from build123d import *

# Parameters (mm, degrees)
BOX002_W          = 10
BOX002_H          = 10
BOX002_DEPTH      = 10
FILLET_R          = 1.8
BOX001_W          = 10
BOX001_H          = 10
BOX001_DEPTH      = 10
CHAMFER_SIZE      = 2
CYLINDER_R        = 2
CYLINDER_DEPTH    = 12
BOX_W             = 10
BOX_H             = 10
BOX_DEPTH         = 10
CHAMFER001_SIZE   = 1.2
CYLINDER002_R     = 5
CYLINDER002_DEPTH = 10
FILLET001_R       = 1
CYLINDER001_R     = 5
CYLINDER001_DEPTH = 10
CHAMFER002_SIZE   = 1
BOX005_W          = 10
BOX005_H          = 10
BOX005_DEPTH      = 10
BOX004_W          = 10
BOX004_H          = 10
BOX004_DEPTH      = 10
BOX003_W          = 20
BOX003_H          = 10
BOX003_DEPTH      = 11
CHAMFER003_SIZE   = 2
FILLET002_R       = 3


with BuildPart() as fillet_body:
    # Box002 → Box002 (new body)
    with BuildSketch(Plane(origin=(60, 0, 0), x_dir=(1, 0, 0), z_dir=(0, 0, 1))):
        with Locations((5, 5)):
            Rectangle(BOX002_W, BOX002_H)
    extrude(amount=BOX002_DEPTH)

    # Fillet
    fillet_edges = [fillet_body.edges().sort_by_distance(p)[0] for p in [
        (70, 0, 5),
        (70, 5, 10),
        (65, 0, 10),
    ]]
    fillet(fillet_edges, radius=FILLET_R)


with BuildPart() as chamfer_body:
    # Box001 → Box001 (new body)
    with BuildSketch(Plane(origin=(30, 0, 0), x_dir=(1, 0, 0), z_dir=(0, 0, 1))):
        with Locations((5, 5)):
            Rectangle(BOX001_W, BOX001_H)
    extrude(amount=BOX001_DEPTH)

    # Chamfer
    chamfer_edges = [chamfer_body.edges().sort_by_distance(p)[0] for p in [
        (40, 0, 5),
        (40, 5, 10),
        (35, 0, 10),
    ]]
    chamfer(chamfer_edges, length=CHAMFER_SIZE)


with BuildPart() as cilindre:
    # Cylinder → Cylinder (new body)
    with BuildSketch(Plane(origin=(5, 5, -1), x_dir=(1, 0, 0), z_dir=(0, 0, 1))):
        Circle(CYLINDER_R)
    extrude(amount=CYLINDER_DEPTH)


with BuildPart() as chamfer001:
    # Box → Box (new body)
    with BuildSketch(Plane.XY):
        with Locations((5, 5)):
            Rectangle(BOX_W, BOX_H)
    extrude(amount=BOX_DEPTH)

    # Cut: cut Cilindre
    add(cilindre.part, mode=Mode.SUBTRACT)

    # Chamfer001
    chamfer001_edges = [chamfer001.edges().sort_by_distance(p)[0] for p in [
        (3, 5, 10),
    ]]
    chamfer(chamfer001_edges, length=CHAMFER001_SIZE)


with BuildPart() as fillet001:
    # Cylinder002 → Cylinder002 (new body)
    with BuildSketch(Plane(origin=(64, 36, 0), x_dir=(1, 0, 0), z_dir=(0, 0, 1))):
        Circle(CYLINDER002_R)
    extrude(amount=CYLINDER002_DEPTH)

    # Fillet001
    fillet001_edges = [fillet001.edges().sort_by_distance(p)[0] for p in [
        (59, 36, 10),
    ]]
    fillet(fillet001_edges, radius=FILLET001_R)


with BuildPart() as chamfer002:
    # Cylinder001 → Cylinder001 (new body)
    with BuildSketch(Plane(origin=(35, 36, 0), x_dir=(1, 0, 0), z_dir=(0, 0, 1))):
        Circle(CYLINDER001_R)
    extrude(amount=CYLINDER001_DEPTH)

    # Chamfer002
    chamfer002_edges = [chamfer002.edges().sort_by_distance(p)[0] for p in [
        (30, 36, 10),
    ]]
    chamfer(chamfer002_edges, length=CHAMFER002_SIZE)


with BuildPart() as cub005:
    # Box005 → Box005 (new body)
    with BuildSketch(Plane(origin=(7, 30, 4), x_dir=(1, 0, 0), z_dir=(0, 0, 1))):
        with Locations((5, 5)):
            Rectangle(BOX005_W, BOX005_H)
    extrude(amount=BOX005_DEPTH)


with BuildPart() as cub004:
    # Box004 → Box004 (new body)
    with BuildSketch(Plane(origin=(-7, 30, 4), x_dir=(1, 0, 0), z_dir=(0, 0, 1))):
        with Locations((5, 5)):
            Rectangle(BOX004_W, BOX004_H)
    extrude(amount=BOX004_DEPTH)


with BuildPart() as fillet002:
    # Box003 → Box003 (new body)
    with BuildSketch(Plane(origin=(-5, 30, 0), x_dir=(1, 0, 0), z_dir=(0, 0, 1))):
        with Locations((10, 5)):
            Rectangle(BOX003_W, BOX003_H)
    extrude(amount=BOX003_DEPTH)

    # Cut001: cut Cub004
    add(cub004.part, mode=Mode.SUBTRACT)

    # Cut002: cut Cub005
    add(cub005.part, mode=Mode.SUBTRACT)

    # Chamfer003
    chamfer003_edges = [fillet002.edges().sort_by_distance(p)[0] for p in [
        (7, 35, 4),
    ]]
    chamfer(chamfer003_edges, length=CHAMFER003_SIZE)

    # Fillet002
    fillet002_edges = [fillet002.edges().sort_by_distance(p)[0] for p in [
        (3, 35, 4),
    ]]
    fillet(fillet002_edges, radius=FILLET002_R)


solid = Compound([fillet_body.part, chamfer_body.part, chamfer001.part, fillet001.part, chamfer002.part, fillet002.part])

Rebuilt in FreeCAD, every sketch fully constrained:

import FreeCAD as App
import Part
import Sketcher

V = App.Vector


def edges_at(feature, points):
    """Names of the edges that pass closest to the given points."""
    edges = feature.Shape.Edges
    near = lambda p: min(range(len(edges)), key=lambda i: edges[i].distToShape(Part.Vertex(*p))[0])
    return sorted({f"Edge{near(p) + 1}" for p in points})

doc = App.newDocument("Part")
params = doc.addObject("Spreadsheet::Sheet", "Params")
for row, (alias, value) in enumerate([
    ("sketch1_width", "10 mm"),
    ("pad1_length", "10 mm"),
    ("fillet_radius", "1.8 mm"),
    ("sketch2_width", "10 mm"),
    ("pad2_length", "10 mm"),
    ("chamfer_size", "2 mm"),
    ("sketch3_diameter", "4 mm"),
    ("pad3_length", "12 mm"),
    ("sketch4_width", "10 mm"),
    ("pad4_length", "10 mm"),
    ("chamfer2_size", "1.2 mm"),
    ("sketch5_diameter", "10 mm"),
    ("pad5_length", "10 mm"),
    ("fillet2_radius", "1 mm"),
    ("sketch6_diameter", "10 mm"),
    ("pad6_length", "10 mm"),
    ("chamfer3_size", "1 mm"),
    ("sketch7_width", "10 mm"),
    ("pad7_length", "10 mm"),
    ("sketch8_width", "10 mm"),
    ("pad8_length", "10 mm"),
    ("sketch9_width", "20 mm"),
    ("sketch9_height", "10 mm"),
    ("pad9_length", "11 mm"),
    ("chamfer4_size", "2 mm"),
    ("fillet3_radius", "3 mm"),
], start=1):
    params.set(f"A{row}", alias)
    params.set(f"B{row}", "=" + value)
    params.setAlias(f"B{row}", alias)

body = doc.addObject("PartDesign::Body", "Body")

# Sketch on XY plane
sketch1 = doc.addObject("Sketcher::SketchObject", "Sketch")
body.addObject(sketch1)
sketch1.AttachmentSupport = (doc.XY_Plane, [""])
sketch1.MapMode = "FlatFace"
sketch1.addGeometry([
    Part.LineSegment(V(60, 10, 0), V(60, 0, 0)),
    Part.LineSegment(V(60, 0, 0), V(70, 0, 0)),
    Part.LineSegment(V(70, 0, 0), V(70, 10, 0)),
    Part.LineSegment(V(70, 10, 0), V(60, 10, 0)),
], False)
sketch1.addConstraint([
    Sketcher.Constraint("Coincident", 0, 2, 1, 1),
    Sketcher.Constraint("Coincident", 1, 2, 2, 1),
    Sketcher.Constraint("Coincident", 2, 2, 3, 1),
    Sketcher.Constraint("Coincident", 3, 2, 0, 1),
    Sketcher.Constraint("Vertical", 0),
    Sketcher.Constraint("Horizontal", 1),
    Sketcher.Constraint("Vertical", 2),
    Sketcher.Constraint("Horizontal", 3),
    Sketcher.Constraint("PointOnObject", 0, 2, -1),
    Sketcher.Constraint("Equal", 3, 0),
    Sketcher.Constraint("DistanceX", 1, 1, 1, 2, 10.0),
    Sketcher.Constraint("DistanceX", -1, 1, 0, 2, 60.0),
])
sketch1.setExpression("Constraints[10]", "Params.sketch1_width")
pad1 = doc.addObject("PartDesign::Pad", "Pad")
body.addObject(pad1)
pad1.Profile = sketch1
pad1.setExpression("Length", "Params.pad1_length")
doc.recompute()

fillet = doc.addObject("PartDesign::Fillet", "Fillet")
body.addObject(fillet)
fillet.Base = (pad1, edges_at(pad1, [(70, 0, 5), (70, 5, 10), (65, 0, 10)]))
fillet.setExpression("Radius", "Params.fillet_radius")
body2 = doc.addObject("PartDesign::Body", "Body001")

# Sketch on XY plane
sketch2 = doc.addObject("Sketcher::SketchObject", "Sketch001")
body2.addObject(sketch2)
sketch2.AttachmentSupport = (doc.getObject("XY_Plane001"), [""])
sketch2.MapMode = "FlatFace"
sketch2.addGeometry([
    Part.LineSegment(V(30, 10, 0), V(30, 0, 0)),
    Part.LineSegment(V(30, 0, 0), V(40, 0, 0)),
    Part.LineSegment(V(40, 0, 0), V(40, 10, 0)),
    Part.LineSegment(V(40, 10, 0), V(30, 10, 0)),
], False)
sketch2.addConstraint([
    Sketcher.Constraint("Coincident", 0, 2, 1, 1),
    Sketcher.Constraint("Coincident", 1, 2, 2, 1),
    Sketcher.Constraint("Coincident", 2, 2, 3, 1),
    Sketcher.Constraint("Coincident", 3, 2, 0, 1),
    Sketcher.Constraint("Vertical", 0),
    Sketcher.Constraint("Horizontal", 1),
    Sketcher.Constraint("Vertical", 2),
    Sketcher.Constraint("Horizontal", 3),
    Sketcher.Constraint("PointOnObject", 0, 2, -1),
    Sketcher.Constraint("Equal", 3, 0),
    Sketcher.Constraint("DistanceX", 1, 1, 1, 2, 10.0),
    Sketcher.Constraint("DistanceX", -1, 1, 0, 2, 30.0),
])
sketch2.setExpression("Constraints[10]", "Params.sketch2_width")
pad2 = doc.addObject("PartDesign::Pad", "Pad001")
body2.addObject(pad2)
pad2.Profile = sketch2
pad2.setExpression("Length", "Params.pad2_length")
doc.recompute()

chamfer = doc.addObject("PartDesign::Chamfer", "Chamfer")
body2.addObject(chamfer)
chamfer.Base = (pad2, edges_at(pad2, [(40, 0, 5), (40, 5, 10), (35, 0, 10)]))
chamfer.setExpression("Size", "Params.chamfer_size")
body3 = doc.addObject("PartDesign::Body", "Body002")

# Sketch on XY plane
sketch3 = doc.addObject("Sketcher::SketchObject", "Sketch002")
body3.addObject(sketch3)
sketch3.AttachmentSupport = (doc.getObject("XY_Plane002"), [""])
sketch3.MapMode = "FlatFace"
sketch3.AttachmentOffset = App.Placement(V(0, 0, -1), App.Rotation())
sketch3.addGeometry(Part.Circle(V(5, 5, 0), V(0, 0, 1), 2), False)
sketch3.addConstraint([
    Sketcher.Constraint("Diameter", 0, 4.0),
    Sketcher.Constraint("DistanceX", -1, 1, 0, 3, 5.0),
    Sketcher.Constraint("DistanceY", -1, 1, 0, 3, 5.0),
])
sketch3.setExpression("Constraints[0]", "Params.sketch3_diameter")
pad3 = doc.addObject("PartDesign::Pad", "Pad002")
body3.addObject(pad3)
pad3.Profile = sketch3
pad3.setExpression("Length", "Params.pad3_length")
body4 = doc.addObject("PartDesign::Body", "Body003")

# Sketch on XY plane
sketch4 = doc.addObject("Sketcher::SketchObject", "Sketch003")
body4.addObject(sketch4)
sketch4.AttachmentSupport = (doc.getObject("XY_Plane003"), [""])
sketch4.MapMode = "FlatFace"
sketch4.addGeometry([
    Part.LineSegment(V(0, 10, 0), V(0, 0, 0)),
    Part.LineSegment(V(0, 0, 0), V(10, 0, 0)),
    Part.LineSegment(V(10, 0, 0), V(10, 10, 0)),
    Part.LineSegment(V(10, 10, 0), V(0, 10, 0)),
], False)
sketch4.addConstraint([
    Sketcher.Constraint("Coincident", 0, 2, 1, 1),
    Sketcher.Constraint("Coincident", 1, 2, 2, 1),
    Sketcher.Constraint("Coincident", 2, 2, 3, 1),
    Sketcher.Constraint("Coincident", 3, 2, 0, 1),
    Sketcher.Constraint("Vertical", 0),
    Sketcher.Constraint("Horizontal", 1),
    Sketcher.Constraint("Vertical", 2),
    Sketcher.Constraint("Horizontal", 3),
    Sketcher.Constraint("Coincident", 0, 2, -1, 1),
    Sketcher.Constraint("Equal", 3, 0),
    Sketcher.Constraint("DistanceX", 1, 1, 1, 2, 10.0),
])
sketch4.setExpression("Constraints[10]", "Params.sketch4_width")
pad4 = doc.addObject("PartDesign::Pad", "Pad003")
body4.addObject(pad4)
pad4.Profile = sketch4
pad4.setExpression("Length", "Params.pad4_length")
doc.recompute()

boolean = doc.addObject("PartDesign::Boolean", "Boolean")
body4.addObject(boolean)
boolean.Type = "Cut"
boolean.addObjects([body3])
doc.recompute()

chamfer2 = doc.addObject("PartDesign::Chamfer", "Chamfer001")
body4.addObject(chamfer2)
chamfer2.Base = (boolean, edges_at(boolean, [(3, 5, 10)]))
chamfer2.setExpression("Size", "Params.chamfer2_size")
body5 = doc.addObject("PartDesign::Body", "Body004")

# Sketch on XY plane
sketch5 = doc.addObject("Sketcher::SketchObject", "Sketch004")
body5.addObject(sketch5)
sketch5.AttachmentSupport = (doc.getObject("XY_Plane004"), [""])
sketch5.MapMode = "FlatFace"
sketch5.addGeometry(Part.Circle(V(64, 36, 0), V(0, 0, 1), 5), False)
sketch5.addConstraint([
    Sketcher.Constraint("Diameter", 0, 10.0),
    Sketcher.Constraint("DistanceX", -1, 1, 0, 3, 64.0),
    Sketcher.Constraint("DistanceY", -1, 1, 0, 3, 36.0),
])
sketch5.setExpression("Constraints[0]", "Params.sketch5_diameter")
pad5 = doc.addObject("PartDesign::Pad", "Pad004")
body5.addObject(pad5)
pad5.Profile = sketch5
pad5.setExpression("Length", "Params.pad5_length")
doc.recompute()

fillet2 = doc.addObject("PartDesign::Fillet", "Fillet001")
body5.addObject(fillet2)
fillet2.Base = (pad5, edges_at(pad5, [(59, 36, 10)]))
fillet2.setExpression("Radius", "Params.fillet2_radius")
body6 = doc.addObject("PartDesign::Body", "Body005")

# Sketch on XY plane
sketch6 = doc.addObject("Sketcher::SketchObject", "Sketch005")
body6.addObject(sketch6)
sketch6.AttachmentSupport = (doc.getObject("XY_Plane005"), [""])
sketch6.MapMode = "FlatFace"
sketch6.addGeometry(Part.Circle(V(35, 36, 0), V(0, 0, 1), 5), False)
sketch6.addConstraint([
    Sketcher.Constraint("Diameter", 0, 10.0),
    Sketcher.Constraint("DistanceX", -1, 1, 0, 3, 35.0),
    Sketcher.Constraint("DistanceY", -1, 1, 0, 3, 36.0),
])
sketch6.setExpression("Constraints[0]", "Params.sketch6_diameter")
pad6 = doc.addObject("PartDesign::Pad", "Pad005")
body6.addObject(pad6)
pad6.Profile = sketch6
pad6.setExpression("Length", "Params.pad6_length")
doc.recompute()

chamfer3 = doc.addObject("PartDesign::Chamfer", "Chamfer002")
body6.addObject(chamfer3)
chamfer3.Base = (pad6, edges_at(pad6, [(30, 36, 10)]))
chamfer3.setExpression("Size", "Params.chamfer3_size")
body7 = doc.addObject("PartDesign::Body", "Body006")

# Sketch on XY plane
sketch7 = doc.addObject("Sketcher::SketchObject", "Sketch006")
body7.addObject(sketch7)
sketch7.AttachmentSupport = (doc.getObject("XY_Plane006"), [""])
sketch7.MapMode = "FlatFace"
sketch7.AttachmentOffset = App.Placement(V(0, 0, 4), App.Rotation())
sketch7.addGeometry([
    Part.LineSegment(V(7, 40, 0), V(7, 30, 0)),
    Part.LineSegment(V(7, 30, 0), V(17, 30, 0)),
    Part.LineSegment(V(17, 30, 0), V(17, 40, 0)),
    Part.LineSegment(V(17, 40, 0), V(7, 40, 0)),
], False)
sketch7.addConstraint([
    Sketcher.Constraint("Coincident", 0, 2, 1, 1),
    Sketcher.Constraint("Coincident", 1, 2, 2, 1),
    Sketcher.Constraint("Coincident", 2, 2, 3, 1),
    Sketcher.Constraint("Coincident", 3, 2, 0, 1),
    Sketcher.Constraint("Vertical", 0),
    Sketcher.Constraint("Horizontal", 1),
    Sketcher.Constraint("Vertical", 2),
    Sketcher.Constraint("Horizontal", 3),
    Sketcher.Constraint("Equal", 3, 0),
    Sketcher.Constraint("DistanceX", 1, 1, 1, 2, 10.0),
    Sketcher.Constraint("DistanceX", -1, 1, 0, 2, 7.0),
    Sketcher.Constraint("DistanceY", -1, 1, 0, 2, 30.0),
])
sketch7.setExpression("Constraints[9]", "Params.sketch7_width")
pad7 = doc.addObject("PartDesign::Pad", "Pad006")
body7.addObject(pad7)
pad7.Profile = sketch7
pad7.setExpression("Length", "Params.pad7_length")
body8 = doc.addObject("PartDesign::Body", "Body007")

# Sketch on XY plane
sketch8 = doc.addObject("Sketcher::SketchObject", "Sketch007")
body8.addObject(sketch8)
sketch8.AttachmentSupport = (doc.getObject("XY_Plane007"), [""])
sketch8.MapMode = "FlatFace"
sketch8.AttachmentOffset = App.Placement(V(0, 0, 4), App.Rotation())
sketch8.addGeometry([
    Part.LineSegment(V(-7, 40, 0), V(-7, 30, 0)),
    Part.LineSegment(V(-7, 30, 0), V(3, 30, 0)),
    Part.LineSegment(V(3, 30, 0), V(3, 40, 0)),
    Part.LineSegment(V(3, 40, 0), V(-7, 40, 0)),
], False)
sketch8.addConstraint([
    Sketcher.Constraint("Coincident", 0, 2, 1, 1),
    Sketcher.Constraint("Coincident", 1, 2, 2, 1),
    Sketcher.Constraint("Coincident", 2, 2, 3, 1),
    Sketcher.Constraint("Coincident", 3, 2, 0, 1),
    Sketcher.Constraint("Vertical", 0),
    Sketcher.Constraint("Horizontal", 1),
    Sketcher.Constraint("Vertical", 2),
    Sketcher.Constraint("Horizontal", 3),
    Sketcher.Constraint("Equal", 3, 0),
    Sketcher.Constraint("DistanceX", 1, 1, 1, 2, 10.0),
    Sketcher.Constraint("DistanceX", 0, 2, -1, 1, 7.0),
    Sketcher.Constraint("DistanceY", -1, 1, 0, 2, 30.0),
])
sketch8.setExpression("Constraints[9]", "Params.sketch8_width")
pad8 = doc.addObject("PartDesign::Pad", "Pad007")
body8.addObject(pad8)
pad8.Profile = sketch8
pad8.setExpression("Length", "Params.pad8_length")
body9 = doc.addObject("PartDesign::Body", "Body008")

# Sketch on XY plane
sketch9 = doc.addObject("Sketcher::SketchObject", "Sketch008")
body9.addObject(sketch9)
sketch9.AttachmentSupport = (doc.getObject("XY_Plane008"), [""])
sketch9.MapMode = "FlatFace"
sketch9.addGeometry([
    Part.LineSegment(V(-5, 40, 0), V(-5, 30, 0)),
    Part.LineSegment(V(-5, 30, 0), V(15, 30, 0)),
    Part.LineSegment(V(15, 30, 0), V(15, 40, 0)),
    Part.LineSegment(V(15, 40, 0), V(-5, 40, 0)),
], False)
sketch9.addConstraint([
    Sketcher.Constraint("Coincident", 0, 2, 1, 1),
    Sketcher.Constraint("Coincident", 1, 2, 2, 1),
    Sketcher.Constraint("Coincident", 2, 2, 3, 1),
    Sketcher.Constraint("Coincident", 3, 2, 0, 1),
    Sketcher.Constraint("Vertical", 0),
    Sketcher.Constraint("Horizontal", 1),
    Sketcher.Constraint("Vertical", 2),
    Sketcher.Constraint("Horizontal", 3),
    Sketcher.Constraint("DistanceX", 1, 1, 1, 2, 20.0),
    Sketcher.Constraint("DistanceY", 0, 2, 0, 1, 10.0),
    Sketcher.Constraint("DistanceX", 0, 2, -1, 1, 5.0),
    Sketcher.Constraint("DistanceY", -1, 1, 0, 2, 30.0),
])
sketch9.setExpression("Constraints[8]", "Params.sketch9_width")
sketch9.setExpression("Constraints[9]", "Params.sketch9_height")
pad9 = doc.addObject("PartDesign::Pad", "Pad008")
body9.addObject(pad9)
pad9.Profile = sketch9
pad9.setExpression("Length", "Params.pad9_length")
doc.recompute()

boolean2 = doc.addObject("PartDesign::Boolean", "Boolean001")
body9.addObject(boolean2)
boolean2.Type = "Cut"
boolean2.addObjects([body8])
doc.recompute()

boolean3 = doc.addObject("PartDesign::Boolean", "Boolean002")
body9.addObject(boolean3)
boolean3.Type = "Cut"
boolean3.addObjects([body7])
doc.recompute()

chamfer4 = doc.addObject("PartDesign::Chamfer", "Chamfer003")
body9.addObject(chamfer4)
chamfer4.Base = (boolean3, edges_at(boolean3, [(7, 35, 4)]))
chamfer4.setExpression("Size", "Params.chamfer4_size")
doc.recompute()

fillet3 = doc.addObject("PartDesign::Fillet", "Fillet002")
body9.addObject(fillet3)
fillet3.Base = (chamfer4, edges_at(chamfer4, [(3, 35, 4)]))
fillet3.setExpression("Radius", "Params.fillet3_radius")

doc.recompute()
